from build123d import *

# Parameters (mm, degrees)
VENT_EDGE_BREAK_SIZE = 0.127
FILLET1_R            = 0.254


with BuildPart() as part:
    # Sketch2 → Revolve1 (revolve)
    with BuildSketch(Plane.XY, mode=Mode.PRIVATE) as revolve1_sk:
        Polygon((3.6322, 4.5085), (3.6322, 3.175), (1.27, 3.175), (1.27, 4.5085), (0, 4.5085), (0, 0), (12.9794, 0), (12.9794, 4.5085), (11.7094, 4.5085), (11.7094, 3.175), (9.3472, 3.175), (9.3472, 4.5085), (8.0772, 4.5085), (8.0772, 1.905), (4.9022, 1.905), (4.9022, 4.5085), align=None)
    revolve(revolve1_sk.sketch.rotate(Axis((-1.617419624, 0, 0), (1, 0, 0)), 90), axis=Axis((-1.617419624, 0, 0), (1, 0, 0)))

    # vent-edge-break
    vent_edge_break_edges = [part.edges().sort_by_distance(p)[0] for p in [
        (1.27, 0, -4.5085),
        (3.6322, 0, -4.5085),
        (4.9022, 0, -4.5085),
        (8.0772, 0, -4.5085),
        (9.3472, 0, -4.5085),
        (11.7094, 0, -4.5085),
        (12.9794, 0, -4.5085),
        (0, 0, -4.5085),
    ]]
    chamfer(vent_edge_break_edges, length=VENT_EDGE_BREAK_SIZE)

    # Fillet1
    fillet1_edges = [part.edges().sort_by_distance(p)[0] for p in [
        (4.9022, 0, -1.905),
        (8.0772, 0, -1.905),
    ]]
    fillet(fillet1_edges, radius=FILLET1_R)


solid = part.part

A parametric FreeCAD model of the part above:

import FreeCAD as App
import Part
import Sketcher
from FreeCAD import Vector
Q = App.Units.Quantity


def edges_at(feature, points):
    """Names of the edges that pass closest to the given points."""
    edges = feature.Shape.Edges
    near = lambda p: min(range(len(edges)), key=lambda i: edges[i].distToShape(Part.Vertex(*p))[0])
    return sorted({f"Edge{near(p) + 1}" for p in points})

doc = App.newDocument("Part")
body = doc.addObject("PartDesign::Body", "Body")

# Sketch on XY plane
sketch1 = body.newObject("Sketcher::SketchObject", "Sketch")
sketch1.AttachmentSupport = (doc.getObject("XY_Plane"), [""])
sketch1.MapMode = "FlatFace"
sketch1.addGeometry(Part.LineSegment(Vector(3.6, 4.5, 0), Vector(3.6, 3.2, 0)), False)
sketch1.addGeometry(Part.LineSegment(Vector(3.6, 3.2, 0), Vector(1.3, 3.2, 0)), False)
sketch1.addGeometry(Part.LineSegment(Vector(1.3, 3.2, 0), Vector(1.3, 4.5, 0)), False)
sketch1.addGeometry(Part.LineSegment(Vector(1.3, 4.5, 0), Vector(0, 4.5, 0)), False)
sketch1.addGeometry(Part.LineSegment(Vector(0, 4.5, 0), Vector(0, 0, 0)), False)
sketch1.addGeometry(Part.LineSegment(Vector(0, 0, 0), Vector(13, 0, 0)), False)
sketch1.addGeometry(Part.LineSegment(Vector(13, 0, 0), Vector(13, 4.5, 0)), False)
sketch1.addGeometry(Part.LineSegment(Vector(13, 4.5, 0), Vector(11.7, 4.5, 0)), False)
sketch1.addGeometry(Part.LineSegment(Vector(11.7, 4.5, 0), Vector(11.7, 3.2, 0)), False)
sketch1.addGeometry(Part.LineSegment(Vector(11.7, 3.2, 0), Vector(9.3, 3.2, 0)), False)
sketch1.addGeometry(Part.LineSegment(Vector(9.3, 3.2, 0), Vector(9.3, 4.5, 0)), False)
sketch1.addGeometry(Part.LineSegment(Vector(9.3, 4.5, 0), Vector(8.1, 4.5, 0)), False)
sketch1.addGeometry(Part.LineSegment(Vector(8.1, 4.5, 0), Vector(8.1, 1.9, 0)), False)
sketch1.addGeometry(Part.LineSegment(Vector(8.1, 1.9, 0), Vector(4.9, 1.9, 0)), False)
sketch1.addGeometry(Part.LineSegment(Vector(4.9, 1.9, 0), Vector(4.9, 4.5, 0)), False)
sketch1.addGeometry(Part.LineSegment(Vector(4.9, 4.5, 0), Vector(3.6, 4.5, 0)), False)
sketch1.addConstraint(Sketcher.Constraint("Coincident", 0, 2, 1, 1))
sketch1.addConstraint(Sketcher.Constraint("Coincident", 1, 2, 2, 1))
sketch1.addConstraint(Sketcher.Constraint("Coincident", 2, 2, 3, 1))
sketch1.addConstraint(Sketcher.Constraint("Coincident", 3, 2, 4, 1))
sketch1.addConstraint(Sketcher.Constraint("Coincident", 4, 2, 5, 1))
sketch1.addConstraint(Sketcher.Constraint("Coincident", 5, 2, 6, 1))
sketch1.addConstraint(Sketcher.Constraint("Coincident", 6, 2, 7, 1))
sketch1.addConstraint(Sketcher.Constraint("Coincident", 7, 2, 8, 1))
sketch1.addConstraint(Sketcher.Constraint("Coincident", 8, 2, 9, 1))
sketch1.addConstraint(Sketcher.Constraint("Coincident", 9, 2, 10, 1))
sketch1.addConstraint(Sketcher.Constraint("Coincident", 10, 2, 11, 1))
sketch1.addConstraint(Sketcher.Constraint("Coincident", 11, 2, 12, 1))
sketch1.addConstraint(Sketcher.Constraint("Coincident", 12, 2, 13, 1))
sketch1.addConstraint(Sketcher.Constraint("Coincident", 13, 2, 14, 1))
sketch1.addConstraint(Sketcher.Constraint("Coincident", 14, 2, 15, 1))
sketch1.addConstraint(Sketcher.Constraint("Coincident", 15, 2, 0, 1))
sketch1.addConstraint(Sketcher.Constraint("Vertical", 0))
sketch1.addConstraint(Sketcher.Constraint("Horizontal", 1))
sketch1.addConstraint(Sketcher.Constraint("Vertical", 2))
sketch1.addConstraint(Sketcher.Constraint("Horizontal", 3))
sketch1.addConstraint(Sketcher.Constraint("Vertical", 4))
sketch1.addConstraint(Sketcher.Constraint("Horizontal", 5))
sketch1.addConstraint(Sketcher.Constraint("Vertical", 6))
sketch1.addConstraint(Sketcher.Constraint("Horizontal", 7))
sketch1.addConstraint(Sketcher.Constraint("Vertical", 8))
sketch1.addConstraint(Sketcher.Constraint("Horizontal", 9))
sketch1.addConstraint(Sketcher.Constraint("Vertical", 10))
sketch1.addConstraint(Sketcher.Constraint("Horizontal", 11))
sketch1.addConstraint(Sketcher.Constraint("Vertical", 12))
sketch1.addConstraint(Sketcher.Constraint("Horizontal", 13))
sketch1.addConstraint(Sketcher.Constraint("Vertical", 14))
sketch1.addConstraint(Sketcher.Constraint("Horizontal", 15))
sketch1.addConstraint(Sketcher.Constraint("Coincident", 4, 2, -1, 1))
sketch1.addConstraint(Sketcher.Constraint("Horizontal", 3, 2, 6, 2))
sketch1.addConstraint(Sketcher.Constraint("Horizontal", 1, 2, 8, 2))
sketch1.addConstraint(Sketcher.Constraint("Horizontal", 7, 2, 10, 2))
sketch1.addConstraint(Sketcher.Constraint("Horizontal", 11, 2, 14, 2))
sketch1.addConstraint(Sketcher.Constraint("Equal", 3, 7))
sketch1.addConstraint(Sketcher.Constraint("Equal", 1, 9))
sketch1.addConstraint(Sketcher.Constraint("Equal", 7, 11))
sketch1.addConstraint(Sketcher.Constraint("Equal", 11, 15))
sketch1.addConstraint(Sketcher.Constraint("DistanceX", 3, 2, 3, 1, Q("0.05 in")))
sketch1.addConstraint(Sketcher.Constraint("DistanceX", 1, 2, 1, 1, Q("0.093 in")))
sketch1.addConstraint(Sketcher.Constraint("DistanceX", 5, 1, 5, 2, Q("0.511 in")))
sketch1.addConstraint(Sketcher.Constraint("DistanceY", 12, 2, 9, 2, Q("0.05 in")))
sketch1.addConstraint(Sketcher.Constraint("DistanceY", 0, 2, 0, 1, Q("0.0525 in")))
sketch1.addConstraint(Sketcher.Constraint("DistanceY", 4, 2, 4, 1, Q("0.1775 in")))
revolution = body.newObject("PartDesign::Revolution", "Revolution")
revolution.Profile = sketch1
revolution.ReferenceAxis = (sketch1, ["H_Axis"])
revolution.Angle = 360
doc.recompute()

chamfer = body.newObject("PartDesign::Chamfer", "Chamfer")
chamfer.Base = (revolution, edges_at(revolution, [
    (1.27, 0, -4.508),
    (3.632, 0, -4.508),
    (4.902, 0, -4.508),
    (8.077, 0, -4.508),
    (9.347, 0, -4.508),
    (11.709, 0, -4.508),
    (12.979, 0, -4.508),
    (0, 0, -4.508),
]))
chamfer.Size = Q("0.005 in")
doc.recompute()

fillet = body.newObject("PartDesign::Fillet", "Fillet")
fillet.Base = (chamfer, edges_at(chamfer, [(4.902, 0, -1.905), (8.077, 0, -1.905)]))
fillet.Radius = Q("0.01 in")

doc.recompute()
